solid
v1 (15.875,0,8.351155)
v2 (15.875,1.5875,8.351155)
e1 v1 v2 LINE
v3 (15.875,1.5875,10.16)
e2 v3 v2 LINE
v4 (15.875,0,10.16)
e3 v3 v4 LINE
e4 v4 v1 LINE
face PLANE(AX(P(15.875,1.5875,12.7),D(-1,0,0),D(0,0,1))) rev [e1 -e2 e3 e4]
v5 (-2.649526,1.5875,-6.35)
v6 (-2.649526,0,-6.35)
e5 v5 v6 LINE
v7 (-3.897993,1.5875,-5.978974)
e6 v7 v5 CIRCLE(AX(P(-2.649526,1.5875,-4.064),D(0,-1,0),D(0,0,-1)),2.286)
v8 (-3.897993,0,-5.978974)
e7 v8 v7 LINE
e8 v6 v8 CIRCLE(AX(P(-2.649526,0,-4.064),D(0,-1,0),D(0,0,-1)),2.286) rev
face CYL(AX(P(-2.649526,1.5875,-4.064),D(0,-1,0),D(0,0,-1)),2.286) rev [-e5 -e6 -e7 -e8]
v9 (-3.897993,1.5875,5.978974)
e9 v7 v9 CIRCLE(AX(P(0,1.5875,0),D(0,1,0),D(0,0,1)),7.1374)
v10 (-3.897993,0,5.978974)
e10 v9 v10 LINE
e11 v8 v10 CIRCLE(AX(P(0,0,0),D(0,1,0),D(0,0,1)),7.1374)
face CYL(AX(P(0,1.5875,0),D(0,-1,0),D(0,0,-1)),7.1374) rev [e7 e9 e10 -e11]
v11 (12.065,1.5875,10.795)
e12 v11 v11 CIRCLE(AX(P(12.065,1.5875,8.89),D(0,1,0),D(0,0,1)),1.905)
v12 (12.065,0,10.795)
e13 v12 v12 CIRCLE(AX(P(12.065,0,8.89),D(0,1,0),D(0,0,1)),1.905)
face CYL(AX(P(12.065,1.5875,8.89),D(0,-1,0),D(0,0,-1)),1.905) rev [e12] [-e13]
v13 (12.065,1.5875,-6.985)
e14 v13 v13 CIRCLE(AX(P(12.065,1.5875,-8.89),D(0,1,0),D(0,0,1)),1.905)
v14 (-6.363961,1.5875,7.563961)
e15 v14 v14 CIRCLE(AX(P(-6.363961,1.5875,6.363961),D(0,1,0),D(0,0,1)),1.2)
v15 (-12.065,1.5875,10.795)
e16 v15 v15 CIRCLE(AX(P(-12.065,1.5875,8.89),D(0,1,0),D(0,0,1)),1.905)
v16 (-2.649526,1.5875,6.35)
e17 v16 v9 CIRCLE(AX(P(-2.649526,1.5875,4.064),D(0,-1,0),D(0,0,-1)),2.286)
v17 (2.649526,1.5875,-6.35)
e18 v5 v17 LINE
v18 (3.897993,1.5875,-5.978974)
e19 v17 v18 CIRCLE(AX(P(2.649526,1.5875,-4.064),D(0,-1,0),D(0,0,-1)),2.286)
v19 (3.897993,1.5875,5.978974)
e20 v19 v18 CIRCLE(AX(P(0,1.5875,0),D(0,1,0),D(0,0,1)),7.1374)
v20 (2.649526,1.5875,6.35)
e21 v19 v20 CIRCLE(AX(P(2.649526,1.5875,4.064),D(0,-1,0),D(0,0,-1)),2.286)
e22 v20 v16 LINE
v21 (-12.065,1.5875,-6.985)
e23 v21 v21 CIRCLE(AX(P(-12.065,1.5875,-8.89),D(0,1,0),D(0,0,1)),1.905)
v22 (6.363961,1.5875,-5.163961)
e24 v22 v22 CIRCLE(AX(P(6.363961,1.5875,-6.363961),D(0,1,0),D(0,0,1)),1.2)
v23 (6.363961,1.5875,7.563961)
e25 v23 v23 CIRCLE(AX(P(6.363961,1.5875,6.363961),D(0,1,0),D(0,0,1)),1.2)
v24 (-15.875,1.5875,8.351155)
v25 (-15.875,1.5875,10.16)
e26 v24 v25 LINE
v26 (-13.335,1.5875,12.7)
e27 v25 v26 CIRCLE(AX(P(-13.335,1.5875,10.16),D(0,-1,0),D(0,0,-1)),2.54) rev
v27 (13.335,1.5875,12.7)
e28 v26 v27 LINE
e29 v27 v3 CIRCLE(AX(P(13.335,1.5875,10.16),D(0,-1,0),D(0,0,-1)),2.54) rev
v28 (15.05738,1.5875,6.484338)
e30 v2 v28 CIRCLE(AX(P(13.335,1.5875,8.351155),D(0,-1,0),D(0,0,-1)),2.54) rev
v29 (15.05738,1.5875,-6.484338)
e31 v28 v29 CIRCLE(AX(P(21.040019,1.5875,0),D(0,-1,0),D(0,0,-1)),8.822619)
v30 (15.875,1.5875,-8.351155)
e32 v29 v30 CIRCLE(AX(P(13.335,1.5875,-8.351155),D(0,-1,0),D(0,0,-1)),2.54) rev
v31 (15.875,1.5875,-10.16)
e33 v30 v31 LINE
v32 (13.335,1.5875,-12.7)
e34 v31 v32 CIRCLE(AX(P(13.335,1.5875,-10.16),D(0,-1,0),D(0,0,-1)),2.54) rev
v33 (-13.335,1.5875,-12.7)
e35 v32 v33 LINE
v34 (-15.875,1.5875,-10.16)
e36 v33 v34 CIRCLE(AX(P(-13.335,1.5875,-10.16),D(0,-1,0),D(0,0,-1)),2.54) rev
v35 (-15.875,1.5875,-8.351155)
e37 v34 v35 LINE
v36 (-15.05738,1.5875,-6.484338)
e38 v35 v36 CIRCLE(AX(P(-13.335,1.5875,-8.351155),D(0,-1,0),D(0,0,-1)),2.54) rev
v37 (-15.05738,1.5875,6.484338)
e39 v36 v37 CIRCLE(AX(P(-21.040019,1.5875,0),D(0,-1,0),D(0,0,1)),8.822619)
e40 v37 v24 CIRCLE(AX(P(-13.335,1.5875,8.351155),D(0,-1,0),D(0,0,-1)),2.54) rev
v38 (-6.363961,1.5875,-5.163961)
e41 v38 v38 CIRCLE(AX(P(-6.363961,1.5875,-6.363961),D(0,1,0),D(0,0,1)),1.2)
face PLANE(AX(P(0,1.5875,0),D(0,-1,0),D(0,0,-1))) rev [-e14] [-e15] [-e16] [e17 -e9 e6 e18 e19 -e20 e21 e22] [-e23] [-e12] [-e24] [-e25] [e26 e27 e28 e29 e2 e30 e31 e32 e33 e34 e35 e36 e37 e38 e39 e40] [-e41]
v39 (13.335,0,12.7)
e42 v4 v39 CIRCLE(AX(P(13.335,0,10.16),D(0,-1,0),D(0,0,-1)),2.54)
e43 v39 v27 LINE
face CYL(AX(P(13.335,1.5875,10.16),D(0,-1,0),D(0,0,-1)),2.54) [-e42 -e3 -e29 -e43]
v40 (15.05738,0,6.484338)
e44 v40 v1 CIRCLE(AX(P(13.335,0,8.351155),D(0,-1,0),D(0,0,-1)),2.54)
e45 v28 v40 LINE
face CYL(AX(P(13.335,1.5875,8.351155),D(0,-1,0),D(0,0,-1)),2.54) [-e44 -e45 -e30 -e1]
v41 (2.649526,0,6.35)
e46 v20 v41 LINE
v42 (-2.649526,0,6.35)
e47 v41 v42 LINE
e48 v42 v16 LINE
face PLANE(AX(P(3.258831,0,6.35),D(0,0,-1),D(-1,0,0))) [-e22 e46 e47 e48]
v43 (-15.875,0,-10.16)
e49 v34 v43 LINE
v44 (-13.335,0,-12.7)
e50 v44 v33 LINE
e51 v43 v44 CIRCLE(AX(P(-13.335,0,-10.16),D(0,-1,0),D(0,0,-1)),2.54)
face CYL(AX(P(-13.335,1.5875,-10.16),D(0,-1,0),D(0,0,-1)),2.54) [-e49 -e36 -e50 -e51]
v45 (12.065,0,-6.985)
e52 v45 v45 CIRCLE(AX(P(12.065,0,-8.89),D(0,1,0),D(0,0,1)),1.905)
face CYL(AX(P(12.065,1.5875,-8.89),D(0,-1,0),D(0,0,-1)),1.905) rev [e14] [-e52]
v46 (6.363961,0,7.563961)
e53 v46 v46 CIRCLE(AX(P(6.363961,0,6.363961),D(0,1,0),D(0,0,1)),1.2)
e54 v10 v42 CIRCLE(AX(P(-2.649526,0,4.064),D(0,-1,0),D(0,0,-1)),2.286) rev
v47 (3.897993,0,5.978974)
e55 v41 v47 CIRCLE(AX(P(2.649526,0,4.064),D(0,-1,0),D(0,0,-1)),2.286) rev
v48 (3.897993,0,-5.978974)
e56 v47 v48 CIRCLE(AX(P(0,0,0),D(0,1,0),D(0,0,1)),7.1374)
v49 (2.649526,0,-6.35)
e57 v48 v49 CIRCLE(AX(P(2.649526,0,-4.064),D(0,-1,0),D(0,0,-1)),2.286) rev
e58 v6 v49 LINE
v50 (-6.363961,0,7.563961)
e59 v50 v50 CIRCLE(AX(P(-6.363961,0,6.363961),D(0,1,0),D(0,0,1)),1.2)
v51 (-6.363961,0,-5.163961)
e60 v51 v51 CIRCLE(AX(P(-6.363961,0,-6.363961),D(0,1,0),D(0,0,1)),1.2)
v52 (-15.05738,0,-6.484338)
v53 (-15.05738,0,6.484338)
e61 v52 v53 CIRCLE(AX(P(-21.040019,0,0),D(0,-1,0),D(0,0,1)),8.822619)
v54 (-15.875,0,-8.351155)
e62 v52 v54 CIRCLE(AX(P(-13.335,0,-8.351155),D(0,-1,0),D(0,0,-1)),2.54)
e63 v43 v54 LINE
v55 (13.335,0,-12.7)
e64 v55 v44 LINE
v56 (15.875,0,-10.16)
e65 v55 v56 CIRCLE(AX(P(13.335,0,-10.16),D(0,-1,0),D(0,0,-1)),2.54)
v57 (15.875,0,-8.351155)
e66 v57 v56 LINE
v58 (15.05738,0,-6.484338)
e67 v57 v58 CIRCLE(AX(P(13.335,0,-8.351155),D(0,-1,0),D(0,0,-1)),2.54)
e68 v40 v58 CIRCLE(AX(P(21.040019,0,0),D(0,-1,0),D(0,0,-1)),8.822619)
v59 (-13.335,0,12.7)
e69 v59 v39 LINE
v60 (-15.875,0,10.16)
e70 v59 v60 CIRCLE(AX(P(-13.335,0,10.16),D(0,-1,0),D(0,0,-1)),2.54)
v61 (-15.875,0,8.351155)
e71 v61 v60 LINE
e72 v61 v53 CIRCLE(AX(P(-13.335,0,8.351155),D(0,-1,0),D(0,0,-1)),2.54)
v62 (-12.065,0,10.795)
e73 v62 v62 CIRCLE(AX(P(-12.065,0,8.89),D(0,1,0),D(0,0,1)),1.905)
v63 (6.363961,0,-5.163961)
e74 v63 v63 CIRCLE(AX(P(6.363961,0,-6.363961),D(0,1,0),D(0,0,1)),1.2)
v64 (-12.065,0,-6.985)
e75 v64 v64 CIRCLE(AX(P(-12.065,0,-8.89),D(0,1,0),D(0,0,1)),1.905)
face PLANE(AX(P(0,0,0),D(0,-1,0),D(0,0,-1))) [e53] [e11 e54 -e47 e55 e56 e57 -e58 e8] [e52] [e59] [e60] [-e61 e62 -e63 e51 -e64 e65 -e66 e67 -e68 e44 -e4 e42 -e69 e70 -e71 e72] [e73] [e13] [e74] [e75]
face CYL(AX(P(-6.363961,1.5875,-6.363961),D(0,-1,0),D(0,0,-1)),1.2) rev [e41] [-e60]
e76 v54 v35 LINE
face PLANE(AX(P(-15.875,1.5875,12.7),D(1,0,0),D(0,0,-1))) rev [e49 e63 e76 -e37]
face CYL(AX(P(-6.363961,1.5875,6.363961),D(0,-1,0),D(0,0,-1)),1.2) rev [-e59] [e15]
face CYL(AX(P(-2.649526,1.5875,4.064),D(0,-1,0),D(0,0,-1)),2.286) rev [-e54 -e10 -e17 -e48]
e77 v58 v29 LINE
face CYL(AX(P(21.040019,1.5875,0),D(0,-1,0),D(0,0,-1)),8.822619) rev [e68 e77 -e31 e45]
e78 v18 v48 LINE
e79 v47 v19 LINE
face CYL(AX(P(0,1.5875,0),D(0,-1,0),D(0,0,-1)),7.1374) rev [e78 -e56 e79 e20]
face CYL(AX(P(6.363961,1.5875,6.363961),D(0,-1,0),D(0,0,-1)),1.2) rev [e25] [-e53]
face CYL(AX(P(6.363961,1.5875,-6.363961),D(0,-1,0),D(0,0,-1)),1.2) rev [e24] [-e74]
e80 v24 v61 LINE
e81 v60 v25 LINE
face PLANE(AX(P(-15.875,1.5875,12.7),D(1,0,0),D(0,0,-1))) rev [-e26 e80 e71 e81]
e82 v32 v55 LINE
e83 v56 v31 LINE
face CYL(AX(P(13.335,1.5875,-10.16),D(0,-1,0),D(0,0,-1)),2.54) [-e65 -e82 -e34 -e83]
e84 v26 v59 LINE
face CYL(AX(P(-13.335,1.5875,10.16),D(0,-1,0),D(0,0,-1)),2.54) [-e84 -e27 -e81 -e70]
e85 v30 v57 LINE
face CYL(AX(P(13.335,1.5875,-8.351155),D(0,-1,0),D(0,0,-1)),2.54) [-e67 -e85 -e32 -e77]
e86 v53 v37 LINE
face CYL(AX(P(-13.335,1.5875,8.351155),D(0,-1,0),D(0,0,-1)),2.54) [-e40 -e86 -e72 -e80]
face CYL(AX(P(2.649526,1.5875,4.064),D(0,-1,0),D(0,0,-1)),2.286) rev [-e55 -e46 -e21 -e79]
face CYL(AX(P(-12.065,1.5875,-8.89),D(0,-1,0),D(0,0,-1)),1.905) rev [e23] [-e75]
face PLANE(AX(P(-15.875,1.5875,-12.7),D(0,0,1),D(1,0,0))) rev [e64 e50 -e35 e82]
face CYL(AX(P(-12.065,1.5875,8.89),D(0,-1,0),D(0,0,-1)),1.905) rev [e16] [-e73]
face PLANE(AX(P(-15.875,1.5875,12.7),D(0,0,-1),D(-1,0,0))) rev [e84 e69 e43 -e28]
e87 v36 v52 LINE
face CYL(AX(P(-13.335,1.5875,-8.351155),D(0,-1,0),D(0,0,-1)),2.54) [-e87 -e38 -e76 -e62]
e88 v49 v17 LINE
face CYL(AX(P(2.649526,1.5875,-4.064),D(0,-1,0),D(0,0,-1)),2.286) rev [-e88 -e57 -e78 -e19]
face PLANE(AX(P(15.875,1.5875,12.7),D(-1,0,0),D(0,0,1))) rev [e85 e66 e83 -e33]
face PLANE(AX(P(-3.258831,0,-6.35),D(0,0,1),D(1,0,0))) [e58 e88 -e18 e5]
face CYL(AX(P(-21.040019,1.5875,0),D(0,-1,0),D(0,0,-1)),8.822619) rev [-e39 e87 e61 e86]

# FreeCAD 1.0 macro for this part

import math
import FreeCAD as App
import Part
import Sketcher
from FreeCAD import Vector
Q = App.Units.Quantity


def edges_at(feature, points):
    """Names of the edges that pass closest to the given points."""
    edges = feature.Shape.Edges
    near = lambda p: min(range(len(edges)), key=lambda i: edges[i].distToShape(Part.Vertex(*p))[0])
    return sorted({f"Edge{near(p) + 1}" for p in points})


def add_polygon(sketch, points):
    """Adds a closed chain of lines whose ends are joined by coincident constraints."""
    first, n = sketch.GeometryCount, len(points)
    for a, b in zip(points, points[1:] + points[:1]):
        sketch.addGeometry(Part.LineSegment(App.Vector(*a, 0), App.Vector(*b, 0)), False)
    for i in range(n):
        sketch.addConstraint(Sketcher.Constraint("Coincident", first + i, 2, first + (i + 1) % n, 1))

doc = App.newDocument("Part")
body = doc.addObject("PartDesign::Body", "Body")

# Sketch on XZ plane
sketch1 = body.newObject("Sketcher::SketchObject", "Sketch")
sketch1.AttachmentSupport = (doc.getObject("XZ_Plane"), [""])
sketch1.MapMode = "FlatFace"
add_polygon(sketch1, [(-15.9, -12.7), (-15.9, 12.7), (15.9, 12.7), (15.9, -12.7)])  # lines 0-3
sketch1.addGeometry(Part.Circle(Vector(-12.1, 8.9, 0), Vector(0, 0, 1), 1.9), False)  # 4
sketch1.addGeometry(Part.Circle(Vector(-6.4, 6.4, 0), Vector(0, 0, 1), 1.2), False)  # 5
sketch1.addGeometry(Part.Circle(Vector(6.4, 6.4, 0), Vector(0, 0, 1), 1.2), False)  # 6
sketch1.addGeometry(Part.Circle(Vector(12.1, 8.9, 0), Vector(0, 0, 1), 1.9), False)  # 7
sketch1.addGeometry(Part.Circle(Vector(-12.1, -8.9, 0), Vector(0, 0, 1), 1.9), False)  # 8
sketch1.addGeometry(Part.Circle(Vector(-6.4, -6.4, 0), Vector(0, 0, 1), 1.2), False)  # 9
sketch1.addGeometry(Part.Circle(Vector(0, 0, 0), Vector(0, 0, 1), 7.1), False)  # 10
sketch1.addGeometry(Part.Circle(Vector(6.4, -6.4, 0), Vector(0, 0, 1), 1.2), False)  # 11
sketch1.addGeometry(Part.Circle(Vector(12.1, -8.9, 0), Vector(0, 0, 1), 1.9), False)  # 12
sketch1.addConstraint([
    Sketcher.Constraint("Vertical", 0),
    Sketcher.Constraint("Horizontal", 1),
    Sketcher.Constraint("Vertical", 2),
    Sketcher.Constraint("Horizontal", 3),
    Sketcher.Constraint("Coincident", 10, 3, -1, 1),
    Sketcher.Constraint("Equal", 5, 6),
    Sketcher.Constraint("Equal", 4, 7),
    Sketcher.Constraint("Equal", 7, 8),
    Sketcher.Constraint("Equal", 6, 9),
    Sketcher.Constraint("Equal", 9, 11),
    Sketcher.Constraint("Equal", 8, 12),
    Sketcher.Constraint("Symmetric", 7, 3, 8, 3, -1, 1),
    Sketcher.Constraint("Symmetric", 6, 3, 9, 3, -1, 1),
    Sketcher.Constraint("Symmetric", 5, 3, 11, 3, -1, 1),
    Sketcher.Constraint("Symmetric", 4, 3, 12, 3, -1, 1),
    Sketcher.Constraint("Symmetric", 0, 2, 2, 2, -1, 1),
    Sketcher.Constraint("Symmetric", 5, 3, 6, 3, -2),
    Sketcher.Constraint("Symmetric", 4, 3, 7, 3, -2),
    Sketcher.Constraint("Diameter", 4, Q("0.15 in")),
    Sketcher.Constraint("DistanceY", 0, 1, 0, 2, Q("1 in")),
    Sketcher.Constraint("Diameter", 10, Q("0.562 in")),
    Sketcher.Constraint("DistanceX", 1, 1, 1, 2, Q("1.25 in")),
    Sketcher.Constraint("DistanceY", 8, 3, 4, 3, Q("0.7 in")),
    Sketcher.Constraint("Diameter", 5, 2.4),
    Sketcher.Constraint("DistanceX", 4, 3, 7, 3, Q("0.95 in")),
    Sketcher.Constraint("DistanceX", 5, 3, -1, 1, 6.363961),
    Sketcher.Constraint("DistanceY", -1, 1, 5, 3, 6.363961),
])
pad1 = body.newObject("PartDesign::Pad", "Pad")
pad1.Profile = sketch1
pad1.Length = Q("0.0625 in")
pad1.Reversed = True

# Sketch on XZ plane
sketch2 = body.newObject("Sketcher::SketchObject", "Sketch001")
sketch2.AttachmentSupport = (doc.getObject("XZ_Plane"), [""])
sketch2.MapMode = "FlatFace"
sketch2.AttachmentOffset = App.Placement(Vector(0, 0, -0.0625 * 25.4), App.Rotation())
sketch2.addGeometry([
    Part.LineSegment(Vector(-3, -6, 0), Vector(3, -6, 0)),
    Part.ArcOfCircle(Part.Circle(Vector(0, 0, 0), Vector(0, 0, 1), 7), math.radians(-117), math.radians(-63)),
    Part.LineSegment(Vector(3, 6, 0), Vector(-3, 6, 0)),
    Part.ArcOfCircle(Part.Circle(Vector(0, 0, 0), Vector(0, 0, 1), 7), math.radians(63), math.radians(117)),
], False)
sketch2.addConstraint([
    Sketcher.Constraint("Coincident", 0, 1, 1, 1),
    Sketcher.Constraint("Coincident", 1, 2, 0, 2),
    Sketcher.Constraint("Coincident", 2, 1, 3, 1),
    Sketcher.Constraint("Coincident", 3, 2, 2, 2),
    Sketcher.Constraint("Horizontal", 0),
    Sketcher.Constraint("Horizontal", 2),
    Sketcher.Constraint("Coincident", 1, 3, -1, 1),
    Sketcher.Constraint("Coincident", 3, 3, -1, 1),
    Sketcher.Constraint("Equal", 1, 3),
    Sketcher.Constraint("Vertical", 1, 2, 2, 1),
    Sketcher.Constraint("Radius", 1, Q("0.281 in")),
    Sketcher.Constraint("DistanceY", 1, 2, 2, 1, Q("0.5 in")),
])
pad2 = body.newObject("PartDesign::Pad", "Pad001")
pad2.Profile = sketch2
pad2.Length = Q("0.0625 in")

# Sketch on XZ plane
sketch3 = body.newObject("Sketcher::SketchObject", "Sketch002")
sketch3.AttachmentSupport = (doc.getObject("XZ_Plane"), [""])
sketch3.MapMode = "FlatFace"
sketch3.addGeometry([
    Part.LineSegment(Vector(-16, 7, 0), Vector(-16, -7, 0)),
    Part.ArcOfCircle(Part.Circle(Vector(-21, 0, 0), Vector(0, 0, 1), 9), math.radians(-54), math.radians(54)),
    Part.LineSegment(Vector(16, -7, 0), Vector(16, 7, 0)),
    Part.ArcOfCircle(Part.Circle(Vector(21, 0, 0), Vector(0, 0, 1), 9), math.radians(126), math.radians(234)),
], False)
sketch3.addConstraint([
    Sketcher.Constraint("Coincident", 0, 1, 1, 2),
    Sketcher.Constraint("Coincident", 1, 1, 0, 2),
    Sketcher.Constraint("Coincident", 2, 1, 3, 2),
    Sketcher.Constraint("Coincident", 3, 1, 2, 2),
    Sketcher.Constraint("Vertical", 0),
    Sketcher.Constraint("Vertical", 2),
    Sketcher.Constraint("Equal", 1, 3),
    Sketcher.Constraint("Symmetric", 1, 3, 3, 3, -1, 1),
    Sketcher.Constraint("Symmetric", 1, 1, 2, 1, -2),
    Sketcher.Constraint("DistanceX", 1, 1, 2, 1, Q("1.25 in")),
    Sketcher.Constraint("Radius", 1, 8.822619),
    Sketcher.Constraint("DistanceY", 0, 2, 0, 1, 14.30541),
])
pocket1 = body.newObject("PartDesign::Pocket", "Pocket")
pocket1.Profile = sketch3
pocket1.Type = "ThroughAll"
doc.recompute()

fillet = body.newObject("PartDesign::Fillet", "Fillet")
fillet.Base = (pocket1, edges_at(pocket1, [
    (-15.875, 0.794, 7.153),
    (-15.875, 0.794, -7.153),
    (15.875, 0.794, 12.7),
    (-15.875, 0.794, 12.7),
    (15.875, 0.794, -7.153),
    (-15.875, 0.794, -12.7),
    (15.875, 0.794, 7.153),
    (15.875, 0.794, -12.7),
]))
fillet.Radius = Q("0.1 in")
doc.recompute()

fillet2 = body.newObject("PartDesign::Fillet", "Fillet001")
fillet2.Base = (fillet, edges_at(fillet, [
    (-3.259, 0.794, -6.35),
    (3.259, 0.794, -6.35),
    (3.259, 0.794, 6.35),
    (-3.259, 0.794, 6.35),
]))
fillet2.Radius = Q("0.09 in")

doc.recompute()
